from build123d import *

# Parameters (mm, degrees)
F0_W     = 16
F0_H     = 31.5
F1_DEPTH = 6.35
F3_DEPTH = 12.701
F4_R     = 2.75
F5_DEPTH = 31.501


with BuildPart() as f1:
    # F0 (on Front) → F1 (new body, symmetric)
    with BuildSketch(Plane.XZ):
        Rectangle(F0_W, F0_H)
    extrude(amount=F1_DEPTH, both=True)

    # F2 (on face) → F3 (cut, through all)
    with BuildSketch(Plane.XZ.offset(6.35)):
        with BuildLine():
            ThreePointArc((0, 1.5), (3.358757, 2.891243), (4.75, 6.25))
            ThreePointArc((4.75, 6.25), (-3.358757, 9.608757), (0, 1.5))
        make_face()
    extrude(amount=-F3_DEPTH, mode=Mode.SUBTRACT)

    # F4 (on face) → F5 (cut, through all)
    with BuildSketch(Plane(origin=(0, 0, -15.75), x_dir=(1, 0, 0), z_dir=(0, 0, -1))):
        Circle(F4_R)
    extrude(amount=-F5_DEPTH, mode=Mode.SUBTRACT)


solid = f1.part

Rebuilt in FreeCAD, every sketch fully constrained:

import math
import FreeCAD as App
import Part
import Sketcher

V = App.Vector
Q = App.Units.Quantity


def add_polygon(sketch, points):
    """Adds a closed chain of lines whose ends are joined by coincident constraints."""
    first, n = sketch.GeometryCount, len(points)
    for a, b in zip(points, points[1:] + points[:1]):
        sketch.addGeometry(Part.LineSegment(App.Vector(*a, 0), App.Vector(*b, 0)), False)
    for i in range(n):
        sketch.addConstraint(Sketcher.Constraint("Coincident", first + i, 2, first + (i + 1) % n, 1))

doc = App.newDocument("Part")
body = doc.addObject("PartDesign::Body", "Body")

# Sketch on XZ plane
sketch1 = doc.addObject("Sketcher::SketchObject", "Sketch")
body.addObject(sketch1)
sketch1.AttachmentSupport = (doc.XZ_Plane, [""])
sketch1.MapMode = "FlatFace"
add_polygon(sketch1, [(-8, 16), (-8, -16), (8, -16), (8, 16)])  # lines 0-3
sketch1.addConstraint([
    Sketcher.Constraint("Vertical", 0),
    Sketcher.Constraint("Horizontal", 1),
    Sketcher.Constraint("Vertical", 2),
    Sketcher.Constraint("Horizontal", 3),
    Sketcher.Constraint("Symmetric", 0, 2, 2, 2, -1, 1),
    Sketcher.Constraint("DistanceX", 1, 1, 1, 2, Q("16 mm")),
    Sketcher.Constraint("DistanceY", 0, 2, 0, 1, Q("31.5 mm")),
])
pad1 = doc.addObject("PartDesign::Pad", "Pad")
body.addObject(pad1)
pad1.Profile = sketch1
pad1.Length = 12.7
pad1.Midplane = True

# Sketch on XZ plane
sketch2 = doc.addObject("Sketcher::SketchObject", "Sketch001")
body.addObject(sketch2)
sketch2.AttachmentSupport = (doc.XZ_Plane, [""])
sketch2.MapMode = "FlatFace"
sketch2.AttachmentOffset = App.Placement(V(0, 0, 6.35), App.Rotation())
sketch2.addGeometry([
    Part.ArcOfCircle(Part.Circle(V(0, 6.3, 0), V(0, 0, 1), 4.8), math.radians(-90), math.radians(0)),
    Part.ArcOfCircle(Part.Circle(V(0, 6.2, 0), V(0, 0, 1), 4.7), math.radians(0), math.radians(270)),
], False)
sketch2.addConstraint([
    Sketcher.Constraint("Tangent", 0, 1, 1, 2),
    Sketcher.Constraint("Coincident", 1, 1, 0, 2),
    Sketcher.Constraint("PointOnObject", 0, 3, -2),
    Sketcher.Constraint("PointOnObject", 0, 1, -2),
    Sketcher.Constraint("Horizontal", 0, 3, 1, 1),
    Sketcher.Constraint("Radius", 0, Q("4.750001 mm")),
    Sketcher.Constraint("DistanceY", -1, 1, 0, 1, Q("1.5 mm")),
])
pocket1 = doc.addObject("PartDesign::Pocket", "Pocket")
body.addObject(pocket1)
pocket1.Profile = sketch2
pocket1.Type = "ThroughAll"

# Sketch on XY plane
sketch3 = doc.addObject("Sketcher::SketchObject", "Sketch002")
body.addObject(sketch3)
sketch3.AttachmentSupport = (doc.XY_Plane, [""])
sketch3.MapMode = "FlatFace"
sketch3.AttachmentOffset = App.Placement(V(0, 0, -15.75), App.Rotation())
sketch3.addGeometry(Part.Circle(V(0, 0, 0), V(0, 0, 1), 2.8), False)
sketch3.addConstraint([
    Sketcher.Constraint("Coincident", 0, 3, -1, 1),
    Sketcher.Constraint("Diameter", 0, Q("5.5 mm")),
])
pocket2 = doc.addObject("PartDesign::Pocket", "Pocket001")
body.addObject(pocket2)
pocket2.Profile = sketch3
pocket2.Type = "ThroughAll"
pocket2.Reversed = True

doc.recompute()
